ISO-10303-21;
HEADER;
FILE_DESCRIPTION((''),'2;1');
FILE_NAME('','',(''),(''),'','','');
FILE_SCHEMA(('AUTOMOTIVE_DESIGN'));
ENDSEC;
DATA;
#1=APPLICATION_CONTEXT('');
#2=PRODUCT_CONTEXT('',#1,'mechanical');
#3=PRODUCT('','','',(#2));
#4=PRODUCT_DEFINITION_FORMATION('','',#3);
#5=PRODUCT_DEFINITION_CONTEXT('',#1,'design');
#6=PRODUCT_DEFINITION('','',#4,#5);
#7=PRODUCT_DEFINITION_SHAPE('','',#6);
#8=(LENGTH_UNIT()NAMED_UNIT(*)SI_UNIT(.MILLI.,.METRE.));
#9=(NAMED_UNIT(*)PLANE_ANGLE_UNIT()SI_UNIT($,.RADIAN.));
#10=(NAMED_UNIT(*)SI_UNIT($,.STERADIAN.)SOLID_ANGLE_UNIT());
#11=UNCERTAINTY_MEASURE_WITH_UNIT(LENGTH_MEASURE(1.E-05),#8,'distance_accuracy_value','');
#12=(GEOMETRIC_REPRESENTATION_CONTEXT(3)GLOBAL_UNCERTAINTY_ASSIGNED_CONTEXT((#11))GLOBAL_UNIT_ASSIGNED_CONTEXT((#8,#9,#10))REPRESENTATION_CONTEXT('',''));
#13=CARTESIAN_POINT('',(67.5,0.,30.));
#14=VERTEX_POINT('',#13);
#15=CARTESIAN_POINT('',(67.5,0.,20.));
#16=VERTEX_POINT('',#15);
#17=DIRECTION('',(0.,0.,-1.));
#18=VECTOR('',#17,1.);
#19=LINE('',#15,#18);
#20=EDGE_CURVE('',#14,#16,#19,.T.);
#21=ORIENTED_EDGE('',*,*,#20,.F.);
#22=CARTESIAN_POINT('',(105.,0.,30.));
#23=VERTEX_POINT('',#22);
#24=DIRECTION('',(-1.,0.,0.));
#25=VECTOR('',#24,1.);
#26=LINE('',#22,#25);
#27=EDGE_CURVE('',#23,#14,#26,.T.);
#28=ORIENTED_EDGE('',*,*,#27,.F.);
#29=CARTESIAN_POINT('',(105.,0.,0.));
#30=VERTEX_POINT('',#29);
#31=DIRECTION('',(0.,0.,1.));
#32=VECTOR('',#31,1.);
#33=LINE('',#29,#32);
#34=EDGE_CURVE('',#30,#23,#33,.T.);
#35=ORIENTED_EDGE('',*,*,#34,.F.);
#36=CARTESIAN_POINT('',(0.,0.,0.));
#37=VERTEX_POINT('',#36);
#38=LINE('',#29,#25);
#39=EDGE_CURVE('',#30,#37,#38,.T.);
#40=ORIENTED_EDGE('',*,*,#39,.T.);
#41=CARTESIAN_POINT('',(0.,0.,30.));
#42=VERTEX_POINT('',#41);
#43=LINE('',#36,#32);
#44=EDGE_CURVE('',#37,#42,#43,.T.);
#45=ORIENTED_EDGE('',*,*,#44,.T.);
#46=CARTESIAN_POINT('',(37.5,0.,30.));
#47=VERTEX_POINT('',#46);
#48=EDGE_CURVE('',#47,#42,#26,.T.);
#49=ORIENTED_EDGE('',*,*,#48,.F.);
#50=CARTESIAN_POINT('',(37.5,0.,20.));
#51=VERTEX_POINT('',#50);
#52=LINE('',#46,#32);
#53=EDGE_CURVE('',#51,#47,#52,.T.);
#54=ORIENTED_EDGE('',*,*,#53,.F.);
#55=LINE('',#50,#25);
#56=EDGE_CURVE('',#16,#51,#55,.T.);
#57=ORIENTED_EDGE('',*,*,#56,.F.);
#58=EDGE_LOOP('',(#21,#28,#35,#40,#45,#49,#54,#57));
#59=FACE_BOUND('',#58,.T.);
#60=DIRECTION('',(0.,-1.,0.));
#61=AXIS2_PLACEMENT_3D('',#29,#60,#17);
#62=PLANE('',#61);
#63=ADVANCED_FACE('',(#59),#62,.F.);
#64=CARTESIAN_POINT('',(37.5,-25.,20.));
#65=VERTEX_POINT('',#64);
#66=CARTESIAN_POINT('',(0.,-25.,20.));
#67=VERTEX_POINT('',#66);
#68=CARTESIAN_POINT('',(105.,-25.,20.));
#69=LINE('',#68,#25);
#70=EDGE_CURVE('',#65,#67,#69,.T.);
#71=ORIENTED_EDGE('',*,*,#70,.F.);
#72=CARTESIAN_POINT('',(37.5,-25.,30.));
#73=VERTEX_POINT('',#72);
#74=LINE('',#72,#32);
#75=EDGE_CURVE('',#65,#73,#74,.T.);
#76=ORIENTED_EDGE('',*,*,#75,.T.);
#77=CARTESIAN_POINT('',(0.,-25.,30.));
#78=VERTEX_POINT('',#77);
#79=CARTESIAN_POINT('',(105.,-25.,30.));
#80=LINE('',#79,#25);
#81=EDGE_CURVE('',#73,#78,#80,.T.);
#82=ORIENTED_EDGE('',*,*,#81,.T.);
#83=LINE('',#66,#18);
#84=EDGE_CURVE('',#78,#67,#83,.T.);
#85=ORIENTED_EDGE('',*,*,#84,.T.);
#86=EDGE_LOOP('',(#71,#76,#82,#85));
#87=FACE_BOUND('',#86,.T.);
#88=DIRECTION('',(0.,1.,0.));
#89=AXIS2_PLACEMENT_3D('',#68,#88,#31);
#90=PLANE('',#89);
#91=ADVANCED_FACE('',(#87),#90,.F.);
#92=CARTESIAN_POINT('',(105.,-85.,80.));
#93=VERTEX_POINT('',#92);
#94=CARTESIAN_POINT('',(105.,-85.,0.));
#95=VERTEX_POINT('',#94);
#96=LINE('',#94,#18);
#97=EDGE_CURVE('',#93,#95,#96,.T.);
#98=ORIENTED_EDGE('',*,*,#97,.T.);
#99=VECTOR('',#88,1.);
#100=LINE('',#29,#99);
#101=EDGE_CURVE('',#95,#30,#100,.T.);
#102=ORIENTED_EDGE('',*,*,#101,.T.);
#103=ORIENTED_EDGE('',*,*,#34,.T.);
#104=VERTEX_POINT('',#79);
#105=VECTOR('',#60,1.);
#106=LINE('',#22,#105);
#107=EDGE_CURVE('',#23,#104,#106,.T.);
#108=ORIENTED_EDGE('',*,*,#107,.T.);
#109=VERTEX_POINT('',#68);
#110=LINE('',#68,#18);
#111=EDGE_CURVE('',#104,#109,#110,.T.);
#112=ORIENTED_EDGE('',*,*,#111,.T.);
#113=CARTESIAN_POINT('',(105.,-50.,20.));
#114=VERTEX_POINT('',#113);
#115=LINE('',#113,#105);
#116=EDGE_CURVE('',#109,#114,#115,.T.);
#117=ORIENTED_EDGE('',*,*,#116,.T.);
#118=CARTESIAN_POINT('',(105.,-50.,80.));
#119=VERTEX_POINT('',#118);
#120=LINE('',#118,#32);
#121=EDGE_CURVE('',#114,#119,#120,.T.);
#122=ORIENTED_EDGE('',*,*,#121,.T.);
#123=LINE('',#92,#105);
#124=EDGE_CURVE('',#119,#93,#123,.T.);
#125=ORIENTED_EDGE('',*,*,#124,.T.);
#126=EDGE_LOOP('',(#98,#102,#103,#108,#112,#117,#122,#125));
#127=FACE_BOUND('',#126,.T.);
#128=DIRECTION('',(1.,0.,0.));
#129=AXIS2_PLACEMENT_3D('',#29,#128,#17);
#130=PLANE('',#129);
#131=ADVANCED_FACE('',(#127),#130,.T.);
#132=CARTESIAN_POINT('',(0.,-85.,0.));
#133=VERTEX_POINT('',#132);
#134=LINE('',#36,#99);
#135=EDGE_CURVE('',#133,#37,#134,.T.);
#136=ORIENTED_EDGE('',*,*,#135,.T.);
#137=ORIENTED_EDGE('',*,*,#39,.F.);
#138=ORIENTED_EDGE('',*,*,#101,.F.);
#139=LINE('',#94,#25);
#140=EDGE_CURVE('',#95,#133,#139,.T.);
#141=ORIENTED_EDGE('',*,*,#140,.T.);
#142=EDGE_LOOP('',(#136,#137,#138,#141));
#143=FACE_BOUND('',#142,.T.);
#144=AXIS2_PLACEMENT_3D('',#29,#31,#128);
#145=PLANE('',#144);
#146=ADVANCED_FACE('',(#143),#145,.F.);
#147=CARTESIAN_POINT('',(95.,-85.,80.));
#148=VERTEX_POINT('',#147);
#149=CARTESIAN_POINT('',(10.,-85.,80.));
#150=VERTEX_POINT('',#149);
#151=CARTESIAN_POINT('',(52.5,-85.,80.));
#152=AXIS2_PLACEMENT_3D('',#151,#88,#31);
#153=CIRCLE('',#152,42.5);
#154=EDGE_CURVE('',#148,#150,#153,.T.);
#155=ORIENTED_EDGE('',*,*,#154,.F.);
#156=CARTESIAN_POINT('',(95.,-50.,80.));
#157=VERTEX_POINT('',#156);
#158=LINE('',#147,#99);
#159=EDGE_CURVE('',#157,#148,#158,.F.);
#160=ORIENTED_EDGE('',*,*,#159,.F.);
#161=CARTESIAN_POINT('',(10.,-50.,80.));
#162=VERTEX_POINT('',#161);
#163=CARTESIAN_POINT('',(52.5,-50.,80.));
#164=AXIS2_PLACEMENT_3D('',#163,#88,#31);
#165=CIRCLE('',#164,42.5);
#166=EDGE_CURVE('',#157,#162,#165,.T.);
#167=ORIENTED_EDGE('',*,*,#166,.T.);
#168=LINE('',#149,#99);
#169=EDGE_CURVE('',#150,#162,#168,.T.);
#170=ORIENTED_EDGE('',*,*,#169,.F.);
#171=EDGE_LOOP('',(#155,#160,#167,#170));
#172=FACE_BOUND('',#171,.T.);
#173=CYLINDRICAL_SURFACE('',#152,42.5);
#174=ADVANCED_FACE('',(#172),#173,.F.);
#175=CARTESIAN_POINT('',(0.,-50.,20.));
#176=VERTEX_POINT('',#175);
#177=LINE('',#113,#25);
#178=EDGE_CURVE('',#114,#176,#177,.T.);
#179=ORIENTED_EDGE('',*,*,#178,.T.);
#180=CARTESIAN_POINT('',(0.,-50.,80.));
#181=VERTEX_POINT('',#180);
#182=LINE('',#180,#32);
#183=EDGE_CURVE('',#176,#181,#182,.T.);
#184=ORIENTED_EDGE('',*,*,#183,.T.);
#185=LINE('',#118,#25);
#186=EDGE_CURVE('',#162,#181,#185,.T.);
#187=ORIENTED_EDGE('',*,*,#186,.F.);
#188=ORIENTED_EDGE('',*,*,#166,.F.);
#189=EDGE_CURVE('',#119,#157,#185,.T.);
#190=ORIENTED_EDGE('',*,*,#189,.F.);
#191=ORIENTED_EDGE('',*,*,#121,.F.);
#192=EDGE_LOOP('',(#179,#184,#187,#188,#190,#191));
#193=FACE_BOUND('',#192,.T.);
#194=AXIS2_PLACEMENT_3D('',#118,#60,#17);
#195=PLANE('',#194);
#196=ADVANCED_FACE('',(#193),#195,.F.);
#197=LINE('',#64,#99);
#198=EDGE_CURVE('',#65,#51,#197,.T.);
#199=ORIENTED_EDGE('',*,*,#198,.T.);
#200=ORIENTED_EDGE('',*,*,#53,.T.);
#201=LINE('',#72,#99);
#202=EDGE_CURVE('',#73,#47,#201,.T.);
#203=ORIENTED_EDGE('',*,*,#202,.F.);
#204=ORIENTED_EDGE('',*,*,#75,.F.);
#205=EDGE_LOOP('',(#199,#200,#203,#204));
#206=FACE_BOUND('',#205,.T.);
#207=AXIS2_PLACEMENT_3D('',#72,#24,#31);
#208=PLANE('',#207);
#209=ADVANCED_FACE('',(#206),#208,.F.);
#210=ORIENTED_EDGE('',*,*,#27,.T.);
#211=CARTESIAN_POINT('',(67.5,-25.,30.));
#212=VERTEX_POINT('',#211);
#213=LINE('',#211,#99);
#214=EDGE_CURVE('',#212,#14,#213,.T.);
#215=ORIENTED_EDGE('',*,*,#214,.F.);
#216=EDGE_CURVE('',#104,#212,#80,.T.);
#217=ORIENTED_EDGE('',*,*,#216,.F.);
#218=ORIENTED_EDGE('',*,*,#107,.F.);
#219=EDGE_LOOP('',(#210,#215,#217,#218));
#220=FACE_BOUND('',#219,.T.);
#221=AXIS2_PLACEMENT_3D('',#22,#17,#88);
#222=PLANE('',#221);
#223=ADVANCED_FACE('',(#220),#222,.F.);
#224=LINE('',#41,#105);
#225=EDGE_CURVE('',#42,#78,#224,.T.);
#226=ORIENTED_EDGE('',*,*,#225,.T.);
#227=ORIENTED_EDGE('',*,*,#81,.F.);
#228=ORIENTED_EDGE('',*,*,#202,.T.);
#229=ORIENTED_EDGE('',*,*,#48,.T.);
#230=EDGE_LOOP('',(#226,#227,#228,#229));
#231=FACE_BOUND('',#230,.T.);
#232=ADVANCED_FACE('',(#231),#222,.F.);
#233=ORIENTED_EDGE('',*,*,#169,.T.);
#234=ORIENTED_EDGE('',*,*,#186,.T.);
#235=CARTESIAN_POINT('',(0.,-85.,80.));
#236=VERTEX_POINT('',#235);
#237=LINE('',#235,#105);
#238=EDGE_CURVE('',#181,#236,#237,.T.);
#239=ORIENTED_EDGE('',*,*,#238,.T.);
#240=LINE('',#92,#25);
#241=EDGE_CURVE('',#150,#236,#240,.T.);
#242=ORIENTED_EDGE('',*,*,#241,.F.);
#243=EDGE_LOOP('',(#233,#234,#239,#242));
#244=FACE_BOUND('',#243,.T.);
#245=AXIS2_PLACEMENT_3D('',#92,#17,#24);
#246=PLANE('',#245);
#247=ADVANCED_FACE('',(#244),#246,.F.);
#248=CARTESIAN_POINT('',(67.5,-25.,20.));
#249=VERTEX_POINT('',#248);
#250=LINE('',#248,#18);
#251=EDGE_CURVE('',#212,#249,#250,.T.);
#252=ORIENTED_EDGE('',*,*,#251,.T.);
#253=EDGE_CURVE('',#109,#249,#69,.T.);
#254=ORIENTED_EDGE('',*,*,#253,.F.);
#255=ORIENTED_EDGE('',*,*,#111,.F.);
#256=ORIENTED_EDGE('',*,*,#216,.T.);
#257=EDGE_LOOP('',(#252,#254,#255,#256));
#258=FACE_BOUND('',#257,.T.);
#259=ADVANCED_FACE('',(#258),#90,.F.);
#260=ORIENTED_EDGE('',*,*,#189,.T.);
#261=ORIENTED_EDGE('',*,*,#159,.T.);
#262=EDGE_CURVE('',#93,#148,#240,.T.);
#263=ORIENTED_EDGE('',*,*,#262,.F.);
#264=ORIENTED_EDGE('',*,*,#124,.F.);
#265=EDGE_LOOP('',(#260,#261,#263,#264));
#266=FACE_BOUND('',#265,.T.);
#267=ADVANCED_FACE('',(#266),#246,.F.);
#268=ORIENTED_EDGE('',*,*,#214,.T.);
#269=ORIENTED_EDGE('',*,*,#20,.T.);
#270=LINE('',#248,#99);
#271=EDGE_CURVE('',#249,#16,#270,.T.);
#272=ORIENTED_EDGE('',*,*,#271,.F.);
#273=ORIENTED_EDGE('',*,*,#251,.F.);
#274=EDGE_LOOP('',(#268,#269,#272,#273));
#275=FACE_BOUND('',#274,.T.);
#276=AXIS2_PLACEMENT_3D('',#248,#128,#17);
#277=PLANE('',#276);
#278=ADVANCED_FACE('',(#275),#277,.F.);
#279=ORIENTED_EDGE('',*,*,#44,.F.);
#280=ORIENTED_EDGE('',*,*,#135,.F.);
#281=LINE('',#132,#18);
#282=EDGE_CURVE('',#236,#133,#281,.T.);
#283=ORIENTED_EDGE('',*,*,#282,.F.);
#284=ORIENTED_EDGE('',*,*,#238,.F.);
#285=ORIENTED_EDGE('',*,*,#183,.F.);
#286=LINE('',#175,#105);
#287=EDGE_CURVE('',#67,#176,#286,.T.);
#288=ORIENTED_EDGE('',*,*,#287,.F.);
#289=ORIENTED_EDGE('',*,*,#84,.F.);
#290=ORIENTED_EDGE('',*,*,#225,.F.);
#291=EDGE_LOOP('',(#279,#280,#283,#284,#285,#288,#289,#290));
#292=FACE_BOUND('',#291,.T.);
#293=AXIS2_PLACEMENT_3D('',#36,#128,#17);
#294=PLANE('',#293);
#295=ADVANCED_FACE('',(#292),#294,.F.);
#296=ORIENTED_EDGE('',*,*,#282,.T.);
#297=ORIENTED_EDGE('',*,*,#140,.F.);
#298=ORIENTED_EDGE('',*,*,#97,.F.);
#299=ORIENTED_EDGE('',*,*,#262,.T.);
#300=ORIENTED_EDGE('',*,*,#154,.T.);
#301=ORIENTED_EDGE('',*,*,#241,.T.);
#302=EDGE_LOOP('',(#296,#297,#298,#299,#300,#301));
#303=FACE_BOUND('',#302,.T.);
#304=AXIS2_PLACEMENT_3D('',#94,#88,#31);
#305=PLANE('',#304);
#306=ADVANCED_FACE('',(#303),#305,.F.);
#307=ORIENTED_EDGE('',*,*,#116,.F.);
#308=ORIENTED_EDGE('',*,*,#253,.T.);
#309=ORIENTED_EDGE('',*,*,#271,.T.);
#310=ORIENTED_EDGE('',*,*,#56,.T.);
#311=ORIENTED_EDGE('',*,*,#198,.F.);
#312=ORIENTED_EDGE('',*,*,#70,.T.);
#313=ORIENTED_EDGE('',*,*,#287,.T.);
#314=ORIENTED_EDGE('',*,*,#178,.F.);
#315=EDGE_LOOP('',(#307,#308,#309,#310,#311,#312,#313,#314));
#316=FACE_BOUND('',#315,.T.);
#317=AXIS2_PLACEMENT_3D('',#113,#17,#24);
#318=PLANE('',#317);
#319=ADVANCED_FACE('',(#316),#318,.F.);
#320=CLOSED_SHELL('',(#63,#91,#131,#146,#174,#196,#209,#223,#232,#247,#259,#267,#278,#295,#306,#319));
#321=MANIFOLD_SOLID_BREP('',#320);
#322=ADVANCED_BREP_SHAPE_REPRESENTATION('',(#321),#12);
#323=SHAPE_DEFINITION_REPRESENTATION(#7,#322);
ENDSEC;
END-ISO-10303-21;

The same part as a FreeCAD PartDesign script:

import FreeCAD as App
import Part
import Sketcher

V = App.Vector
Q = App.Units.Quantity

doc = App.newDocument("Part")
params = doc.addObject("Spreadsheet::Sheet", "Params")
for row, (alias, value) in enumerate([
    ("sketch1_width", "85 mm"),
    ("sketch1_width2", "25 mm"),
    ("sketch1_height", "30 mm"),
    ("sketch1_height2", "10 mm"),
    ("sketch1_height3", "60 mm"),
    ("pad1_length", "105 mm"),
    ("sketch2_width", "30 mm"),
    ("sketch2_height", "10 mm"),
    ("pocket1_length", "25 mm"),
    ("sketch3_diameter", "85 mm"),
    ("pocket2_length", "35 mm"),
], start=1):
    params.set(f"A{row}", alias)
    params.set(f"B{row}", "=" + value)
    params.setAlias(f"B{row}", alias)

body = doc.addObject("PartDesign::Body", "Body")

sketch1 = doc.addObject("Sketcher::SketchObject", "Sketch")
body.addObject(sketch1)
sketch1.AttachmentSupport = (doc.YZ_Plane, [""])
sketch1.MapMode = "FlatFace"
sketch1.addGeometry(Part.LineSegment(V(-85, 0, 0), V(0, 0, 0)), False)
sketch1.addGeometry(Part.LineSegment(V(0, 0, 0), V(0, 30, 0)), False)
sketch1.addGeometry(Part.LineSegment(V(0, 30, 0), V(-25, 30, 0)), False)
sketch1.addGeometry(Part.LineSegment(V(-25, 30, 0), V(-25, 20, 0)), False)
sketch1.addGeometry(Part.LineSegment(V(-25, 20, 0), V(-50, 20, 0)), False)
sketch1.addGeometry(Part.LineSegment(V(-50, 20, 0), V(-50, 80, 0)), False)
sketch1.addGeometry(Part.LineSegment(V(-50, 80, 0), V(-85, 80, 0)), False)
sketch1.addGeometry(Part.LineSegment(V(-85, 80, 0), V(-85, 0, 0)), False)
sketch1.addConstraint(Sketcher.Constraint("Coincident", 0, 2, 1, 1))
sketch1.addConstraint(Sketcher.Constraint("Coincident", 1, 2, 2, 1))
sketch1.addConstraint(Sketcher.Constraint("Coincident", 2, 2, 3, 1))
sketch1.addConstraint(Sketcher.Constraint("Coincident", 3, 2, 4, 1))
sketch1.addConstraint(Sketcher.Constraint("Coincident", 4, 2, 5, 1))
sketch1.addConstraint(Sketcher.Constraint("Coincident", 5, 2, 6, 1))
sketch1.addConstraint(Sketcher.Constraint("Coincident", 6, 2, 7, 1))
sketch1.addConstraint(Sketcher.Constraint("Coincident", 7, 2, 0, 1))
sketch1.addConstraint(Sketcher.Constraint("Horizontal", 0))
sketch1.addConstraint(Sketcher.Constraint("Vertical", 1))
sketch1.addConstraint(Sketcher.Constraint("Horizontal", 2))
sketch1.addConstraint(Sketcher.Constraint("Vertical", 3))
sketch1.addConstraint(Sketcher.Constraint("Horizontal", 4))
sketch1.addConstraint(Sketcher.Constraint("Vertical", 5))
sketch1.addConstraint(Sketcher.Constraint("Horizontal", 6))
sketch1.addConstraint(Sketcher.Constraint("Vertical", 7))
sketch1.addConstraint(Sketcher.Constraint("Coincident", 0, 2, -1, 1))
sketch1.addConstraint(Sketcher.Constraint("Equal", 2, 4))
sketch1.addConstraint(Sketcher.Constraint("DistanceX", 0, 1, 0, 2, Q("85 mm")))
sketch1.addConstraint(Sketcher.Constraint("DistanceX", 2, 2, 2, 1, Q("25 mm")))
sketch1.addConstraint(Sketcher.Constraint("DistanceY", 1, 1, 1, 2, Q("30 mm")))
sketch1.addConstraint(Sketcher.Constraint("DistanceY", 3, 2, 3, 1, Q("10 mm")))
sketch1.addConstraint(Sketcher.Constraint("DistanceY", 5, 1, 5, 2, Q("60 mm")))
sketch1.setExpression("Constraints[18]", "Params.sketch1_width")
sketch1.setExpression("Constraints[19]", "Params.sketch1_width2")
sketch1.setExpression("Constraints[20]", "Params.sketch1_height")
sketch1.setExpression("Constraints[21]", "Params.sketch1_height2")
sketch1.setExpression("Constraints[22]", "Params.sketch1_height3")
pad1 = doc.addObject("PartDesign::Pad", "Pad")
body.addObject(pad1)
pad1.Profile = sketch1
pad1.setExpression("Length", "Params.pad1_length")

sketch2 = doc.addObject("Sketcher::SketchObject", "Sketch001")
body.addObject(sketch2)
sketch2.AttachmentSupport = (doc.XZ_Plane, [""])
sketch2.MapMode = "FlatFace"
sketch2.addGeometry(Part.LineSegment(V(38, 20, 0), V(38, 30, 0)), False)
sketch2.addGeometry(Part.LineSegment(V(38, 30, 0), V(68, 30, 0)), False)
sketch2.addGeometry(Part.LineSegment(V(68, 30, 0), V(68, 20, 0)), False)
sketch2.addGeometry(Part.LineSegment(V(68, 20, 0), V(38, 20, 0)), False)
sketch2.addConstraint(Sketcher.Constraint("Coincident", 0, 2, 1, 1))
sketch2.addConstraint(Sketcher.Constraint("Coincident", 1, 2, 2, 1))
sketch2.addConstraint(Sketcher.Constraint("Coincident", 2, 2, 3, 1))
sketch2.addConstraint(Sketcher.Constraint("Coincident", 3, 2, 0, 1))
sketch2.addConstraint(Sketcher.Constraint("Vertical", 0))
sketch2.addConstraint(Sketcher.Constraint("Horizontal", 1))
sketch2.addConstraint(Sketcher.Constraint("Vertical", 2))
sketch2.addConstraint(Sketcher.Constraint("Horizontal", 3))
sketch2.addConstraint(Sketcher.Constraint("DistanceX", 1, 1, 1, 2, Q("30 mm")))
sketch2.addConstraint(Sketcher.Constraint("DistanceY", 0, 1, 0, 2, Q("10 mm")))
sketch2.addConstraint(Sketcher.Constraint("DistanceY", -1, 1, 0, 2, Q("30 mm")))
sketch2.addConstraint(Sketcher.Constraint("DistanceX", -1, 1, 0, 2, Q("37.5 mm")))
sketch2.setExpression("Constraints[8]", "Params.sketch2_width")
sketch2.setExpression("Constraints[9]", "Params.sketch2_height")
pocket1 = doc.addObject("PartDesign::Pocket", "Pocket")
body.addObject(pocket1)
pocket1.Profile = sketch2
pocket1.setExpression("Length", "Params.pocket1_length")
pocket1.Reversed = True

sketch3 = doc.addObject("Sketcher::SketchObject", "Sketch002")
body.addObject(sketch3)
sketch3.AttachmentSupport = (doc.XZ_Plane, [""])
sketch3.MapMode = "FlatFace"
sketch3.AttachmentOffset = App.Placement(V(0, 0, 50), App.Rotation())
sketch3.addGeometry(Part.Circle(V(52, 80, 0), V(0, 0, 1), 42), False)
sketch3.addConstraint(Sketcher.Constraint("Diameter", 0, Q("85 mm")))
sketch3.addConstraint(Sketcher.Constraint("DistanceY", -1, 1, 0, 3, Q("80 mm")))
sketch3.addConstraint(Sketcher.Constraint("DistanceX", -1, 1, 0, 3, Q("52.5 mm")))
sketch3.setExpression("Constraints[0]", "Params.sketch3_diameter")
pocket2 = doc.addObject("PartDesign::Pocket", "Pocket001")
body.addObject(pocket2)
pocket2.Profile = sketch3
pocket2.setExpression("Length", "Params.pocket2_length")
pocket2.Reversed = True

doc.recompute()
